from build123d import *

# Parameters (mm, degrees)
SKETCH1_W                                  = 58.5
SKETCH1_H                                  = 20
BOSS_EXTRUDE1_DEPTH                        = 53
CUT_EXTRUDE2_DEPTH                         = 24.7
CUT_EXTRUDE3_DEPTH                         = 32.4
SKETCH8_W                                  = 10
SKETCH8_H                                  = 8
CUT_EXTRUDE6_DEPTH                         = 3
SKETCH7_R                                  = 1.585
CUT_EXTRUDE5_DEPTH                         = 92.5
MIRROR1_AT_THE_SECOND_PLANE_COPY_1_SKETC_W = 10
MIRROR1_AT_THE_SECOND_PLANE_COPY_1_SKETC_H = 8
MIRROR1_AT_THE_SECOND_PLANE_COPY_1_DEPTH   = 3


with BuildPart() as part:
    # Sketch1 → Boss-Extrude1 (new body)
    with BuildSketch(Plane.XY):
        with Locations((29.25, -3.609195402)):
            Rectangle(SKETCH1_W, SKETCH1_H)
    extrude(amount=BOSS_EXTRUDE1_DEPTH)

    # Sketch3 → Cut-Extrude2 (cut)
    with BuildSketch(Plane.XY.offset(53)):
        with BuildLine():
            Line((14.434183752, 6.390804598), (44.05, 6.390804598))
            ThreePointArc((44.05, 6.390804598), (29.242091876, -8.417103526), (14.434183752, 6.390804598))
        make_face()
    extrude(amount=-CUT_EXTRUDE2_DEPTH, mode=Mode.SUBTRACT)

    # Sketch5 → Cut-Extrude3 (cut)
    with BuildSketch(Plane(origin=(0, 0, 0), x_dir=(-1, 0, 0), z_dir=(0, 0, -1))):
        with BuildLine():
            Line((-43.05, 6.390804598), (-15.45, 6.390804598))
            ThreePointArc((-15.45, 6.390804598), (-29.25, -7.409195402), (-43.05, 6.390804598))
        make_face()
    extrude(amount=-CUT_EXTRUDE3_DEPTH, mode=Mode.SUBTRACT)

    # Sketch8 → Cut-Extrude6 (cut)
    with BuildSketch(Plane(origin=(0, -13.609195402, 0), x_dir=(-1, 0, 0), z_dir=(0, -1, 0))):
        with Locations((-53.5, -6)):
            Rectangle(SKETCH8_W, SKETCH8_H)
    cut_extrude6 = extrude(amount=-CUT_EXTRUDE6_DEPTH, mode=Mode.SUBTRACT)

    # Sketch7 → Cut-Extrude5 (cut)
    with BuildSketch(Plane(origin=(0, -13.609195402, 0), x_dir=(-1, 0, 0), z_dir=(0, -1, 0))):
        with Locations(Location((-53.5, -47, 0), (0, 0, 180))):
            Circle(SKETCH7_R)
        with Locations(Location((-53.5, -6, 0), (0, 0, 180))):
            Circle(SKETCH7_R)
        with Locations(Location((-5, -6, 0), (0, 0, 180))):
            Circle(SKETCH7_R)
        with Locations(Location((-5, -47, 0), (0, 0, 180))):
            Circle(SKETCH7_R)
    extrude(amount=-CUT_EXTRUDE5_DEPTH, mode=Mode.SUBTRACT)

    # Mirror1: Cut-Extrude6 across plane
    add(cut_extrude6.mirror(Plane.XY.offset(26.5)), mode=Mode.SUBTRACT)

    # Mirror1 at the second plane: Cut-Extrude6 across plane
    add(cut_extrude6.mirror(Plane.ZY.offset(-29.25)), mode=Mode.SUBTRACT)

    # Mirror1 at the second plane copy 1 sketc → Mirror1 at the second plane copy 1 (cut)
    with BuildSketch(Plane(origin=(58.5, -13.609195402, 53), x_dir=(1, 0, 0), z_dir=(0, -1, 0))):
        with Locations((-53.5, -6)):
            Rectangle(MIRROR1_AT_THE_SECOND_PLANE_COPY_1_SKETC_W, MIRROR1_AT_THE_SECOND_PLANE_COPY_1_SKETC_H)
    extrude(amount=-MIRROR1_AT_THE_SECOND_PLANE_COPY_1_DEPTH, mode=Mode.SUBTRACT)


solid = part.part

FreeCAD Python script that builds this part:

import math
import FreeCAD as App
import Part
import Sketcher

V = App.Vector


def add_polygon(sketch, points):
    """Adds a closed chain of lines whose ends are joined by coincident constraints."""
    first, n = sketch.GeometryCount, len(points)
    for a, b in zip(points, points[1:] + points[:1]):
        sketch.addGeometry(Part.LineSegment(App.Vector(*a, 0), App.Vector(*b, 0)), False)
    for i in range(n):
        sketch.addConstraint(Sketcher.Constraint("Coincident", first + i, 2, first + (i + 1) % n, 1))

doc = App.newDocument("Part")
body = doc.addObject("PartDesign::Body", "Body")

# Sketch on XY plane
sketch1 = body.newObject("Sketcher::SketchObject", "Sketch")
sketch1.AttachmentSupport = (doc.getObject("XY_Plane"), [""])
sketch1.MapMode = "FlatFace"
add_polygon(sketch1, [(0, 6), (0, -14), (58, -14), (58, 6)])  # lines 0-3
sketch1.addConstraint(Sketcher.Constraint("Vertical", 0))
sketch1.addConstraint(Sketcher.Constraint("Horizontal", 1))
sketch1.addConstraint(Sketcher.Constraint("Vertical", 2))
sketch1.addConstraint(Sketcher.Constraint("Horizontal", 3))
sketch1.addConstraint(Sketcher.Constraint("PointOnObject", 0, 2, -2))
sketch1.addConstraint(Sketcher.Constraint("DistanceY", 0, 2, 0, 1, 20.0))
sketch1.addConstraint(Sketcher.Constraint("DistanceX", 1, 1, 1, 2, 58.5))
sketch1.addConstraint(Sketcher.Constraint("DistanceY", 0, 2, -1, 1, 13.609195))
pad1 = body.newObject("PartDesign::Pad", "Pad")
pad1.Profile = sketch1
pad1.Length = 53

# Sketch on XY plane
sketch2 = body.newObject("Sketcher::SketchObject", "Sketch001")
sketch2.AttachmentSupport = (doc.getObject("XY_Plane"), [""])
sketch2.MapMode = "FlatFace"
sketch2.AttachmentOffset = App.Placement(V(0, 0, 53), App.Rotation())
sketch2.addGeometry(Part.LineSegment(V(44, 6, 0), V(14, 6, 0)), False)
sketch2.addGeometry(Part.ArcOfCircle(Part.Circle(V(29, 6, 0), V(0, 0, 1), 15), math.radians(180), math.radians(360)), False)
sketch2.addConstraint(Sketcher.Constraint("Coincident", 0, 1, 1, 2))
sketch2.addConstraint(Sketcher.Constraint("Coincident", 1, 1, 0, 2))
sketch2.addConstraint(Sketcher.Constraint("Horizontal", 0))
sketch2.addConstraint(Sketcher.Constraint("Horizontal", 1, 3, 0, 1))
sketch2.addConstraint(Sketcher.Constraint("DistanceX", -1, 1, 0, 1, 44.05))
sketch2.addConstraint(Sketcher.Constraint("Radius", 1, 14.807908))
sketch2.addConstraint(Sketcher.Constraint("DistanceY", -1, 1, 1, 3, 6.390805))
pocket1 = body.newObject("PartDesign::Pocket", "Pocket")
pocket1.Profile = sketch2
pocket1.Length = 24.7

# Sketch on XY plane
sketch3 = body.newObject("Sketcher::SketchObject", "Sketch002")
sketch3.AttachmentSupport = (doc.getObject("XY_Plane"), [""])
sketch3.MapMode = "FlatFace"
sketch3.addGeometry(Part.LineSegment(V(15, 6, 0), V(43, 6, 0)), False)
sketch3.addGeometry(Part.ArcOfCircle(Part.Circle(V(29, 6, 0), V(0, 0, 1), 14), math.radians(180), math.radians(360)), False)
sketch3.addConstraint(Sketcher.Constraint("Coincident", 0, 1, 1, 1))
sketch3.addConstraint(Sketcher.Constraint("Coincident", 1, 2, 0, 2))
sketch3.addConstraint(Sketcher.Constraint("Horizontal", 0))
sketch3.addConstraint(Sketcher.Constraint("Horizontal", 1, 3, 0, 1))
sketch3.addConstraint(Sketcher.Constraint("Radius", 1, 13.8))
sketch3.addConstraint(Sketcher.Constraint("DistanceX", -1, 1, 1, 3, 29.25))
sketch3.addConstraint(Sketcher.Constraint("DistanceY", -1, 1, 1, 3, 6.390805))
pocket2 = body.newObject("PartDesign::Pocket", "Pocket001")
pocket2.Profile = sketch3
pocket2.Length = 32.4
pocket2.Reversed = True

# Sketch on XZ plane
sketch4 = body.newObject("Sketcher::SketchObject", "Sketch003")
sketch4.AttachmentSupport = (doc.getObject("XZ_Plane"), [""])
sketch4.MapMode = "FlatFace"
sketch4.AttachmentOffset = App.Placement(V(0, 0, 13.609195), App.Rotation())
add_polygon(sketch4, [(58, 2), (58, 10), (48, 10), (48, 2)])  # lines 0-3
sketch4.addConstraint(Sketcher.Constraint("Vertical", 0))
sketch4.addConstraint(Sketcher.Constraint("Horizontal", 1))
sketch4.addConstraint(Sketcher.Constraint("Vertical", 2))
sketch4.addConstraint(Sketcher.Constraint("Horizontal", 3))
sketch4.addConstraint(Sketcher.Constraint("DistanceX", 1, 2, 1, 1, 10.0))
sketch4.addConstraint(Sketcher.Constraint("DistanceY", 0, 1, 0, 2, 8.0))
sketch4.addConstraint(Sketcher.Constraint("DistanceY", -1, 1, 0, 2, 10.0))
sketch4.addConstraint(Sketcher.Constraint("DistanceX", -1, 1, 0, 2, 58.5))
pocket3 = body.newObject("PartDesign::Pocket", "Pocket002")
pocket3.Profile = sketch4
pocket3.Length = 3

# Sketch on XZ plane
sketch5 = body.newObject("Sketcher::SketchObject", "Sketch004")
sketch5.AttachmentSupport = (doc.getObject("XZ_Plane"), [""])
sketch5.MapMode = "FlatFace"
sketch5.AttachmentOffset = App.Placement(V(0, 0, 13.609195), App.Rotation())
sketch5.addGeometry(Part.Circle(V(53.5, 47, 0), V(0, 0, 1), 1.6), False)
sketch5.addGeometry(Part.Circle(V(53.5, 6, 0), V(0, 0, 1), 1.6), False)
sketch5.addGeometry(Part.Circle(V(5, 6, 0), V(0, 0, 1), 1.6), False)
sketch5.addGeometry(Part.Circle(V(5, 47, 0), V(0, 0, 1), 1.6), False)
sketch5.addConstraint(Sketcher.Constraint("Equal", 0, 1))
sketch5.addConstraint(Sketcher.Constraint("Equal", 1, 2))
sketch5.addConstraint(Sketcher.Constraint("Equal", 2, 3))
sketch5.addConstraint(Sketcher.Constraint("Horizontal", 1, 3, 2, 3))
sketch5.addConstraint(Sketcher.Constraint("Horizontal", 0, 3, 3, 3))
sketch5.addConstraint(Sketcher.Constraint("Vertical", 0, 3, 1, 3))
sketch5.addConstraint(Sketcher.Constraint("Vertical", 2, 3, 3, 3))
sketch5.addConstraint(Sketcher.Constraint("Diameter", 0, 3.17))
sketch5.addConstraint(Sketcher.Constraint("DistanceY", -1, 1, 0, 3, 47.0))
sketch5.addConstraint(Sketcher.Constraint("DistanceY", -1, 1, 1, 3, 6.0))
sketch5.addConstraint(Sketcher.Constraint("DistanceX", -1, 1, 2, 3, 5.0))
sketch5.addConstraint(Sketcher.Constraint("DistanceX", -1, 1, 0, 3, 53.5))
pocket4 = body.newObject("PartDesign::Pocket", "Pocket003")
pocket4.Profile = sketch5
pocket4.Length = 92.5
doc.recompute()

datumplane = body.newObject("PartDesign::Plane", "DatumPlane")
datumplane.AttachmentSupport = (doc.getObject("XY_Plane"), [""])
datumplane.MapMode = "FlatFace"
datumplane.AttachmentOffset = App.Placement(V(0, 0, 26.5), App.Rotation())
mirrored = body.newObject("PartDesign::Mirrored", "Mirrored")
mirrored.Originals = [pocket3]
mirrored.MirrorPlane = (datumplane, [""])
body.Tip = mirrored
doc.recompute()

datumplane2 = body.newObject("PartDesign::Plane", "DatumPlane001")
datumplane2.AttachmentSupport = (doc.getObject("YZ_Plane"), [""])
datumplane2.MapMode = "FlatFace"
datumplane2.AttachmentOffset = App.Placement(V(0, 0, 29.25), App.Rotation())
mirrored2 = body.newObject("PartDesign::Mirrored", "Mirrored001")
mirrored2.Originals = [pocket3]
mirrored2.MirrorPlane = (datumplane2, [""])
body.Tip = mirrored2

# Sketch on XZ plane
sketch6 = body.newObject("Sketcher::SketchObject", "Sketch005")
sketch6.AttachmentSupport = (doc.getObject("XZ_Plane"), [""])
sketch6.MapMode = "FlatFace"
sketch6.AttachmentOffset = App.Placement(V(0, 0, 13.609195), App.Rotation())
add_polygon(sketch6, [(0, 51), (0, 43), (10, 43), (10, 51)])  # lines 0-3
sketch6.addConstraint(Sketcher.Constraint("Vertical", 0))
sketch6.addConstraint(Sketcher.Constraint("Horizontal", 1))
sketch6.addConstraint(Sketcher.Constraint("Vertical", 2))
sketch6.addConstraint(Sketcher.Constraint("Horizontal", 3))
sketch6.addConstraint(Sketcher.Constraint("PointOnObject", 0, 2, -2))
sketch6.addConstraint(Sketcher.Constraint("DistanceX", 1, 1, 1, 2, 10.0))
sketch6.addConstraint(Sketcher.Constraint("DistanceY", 0, 2, 0, 1, 8.0))
sketch6.addConstraint(Sketcher.Constraint("DistanceY", -1, 1, 0, 2, 43.0))
pocket5 = body.newObject("PartDesign::Pocket", "Pocket004")
pocket5.Profile = sketch6
pocket5.Length = 3

doc.recompute()
